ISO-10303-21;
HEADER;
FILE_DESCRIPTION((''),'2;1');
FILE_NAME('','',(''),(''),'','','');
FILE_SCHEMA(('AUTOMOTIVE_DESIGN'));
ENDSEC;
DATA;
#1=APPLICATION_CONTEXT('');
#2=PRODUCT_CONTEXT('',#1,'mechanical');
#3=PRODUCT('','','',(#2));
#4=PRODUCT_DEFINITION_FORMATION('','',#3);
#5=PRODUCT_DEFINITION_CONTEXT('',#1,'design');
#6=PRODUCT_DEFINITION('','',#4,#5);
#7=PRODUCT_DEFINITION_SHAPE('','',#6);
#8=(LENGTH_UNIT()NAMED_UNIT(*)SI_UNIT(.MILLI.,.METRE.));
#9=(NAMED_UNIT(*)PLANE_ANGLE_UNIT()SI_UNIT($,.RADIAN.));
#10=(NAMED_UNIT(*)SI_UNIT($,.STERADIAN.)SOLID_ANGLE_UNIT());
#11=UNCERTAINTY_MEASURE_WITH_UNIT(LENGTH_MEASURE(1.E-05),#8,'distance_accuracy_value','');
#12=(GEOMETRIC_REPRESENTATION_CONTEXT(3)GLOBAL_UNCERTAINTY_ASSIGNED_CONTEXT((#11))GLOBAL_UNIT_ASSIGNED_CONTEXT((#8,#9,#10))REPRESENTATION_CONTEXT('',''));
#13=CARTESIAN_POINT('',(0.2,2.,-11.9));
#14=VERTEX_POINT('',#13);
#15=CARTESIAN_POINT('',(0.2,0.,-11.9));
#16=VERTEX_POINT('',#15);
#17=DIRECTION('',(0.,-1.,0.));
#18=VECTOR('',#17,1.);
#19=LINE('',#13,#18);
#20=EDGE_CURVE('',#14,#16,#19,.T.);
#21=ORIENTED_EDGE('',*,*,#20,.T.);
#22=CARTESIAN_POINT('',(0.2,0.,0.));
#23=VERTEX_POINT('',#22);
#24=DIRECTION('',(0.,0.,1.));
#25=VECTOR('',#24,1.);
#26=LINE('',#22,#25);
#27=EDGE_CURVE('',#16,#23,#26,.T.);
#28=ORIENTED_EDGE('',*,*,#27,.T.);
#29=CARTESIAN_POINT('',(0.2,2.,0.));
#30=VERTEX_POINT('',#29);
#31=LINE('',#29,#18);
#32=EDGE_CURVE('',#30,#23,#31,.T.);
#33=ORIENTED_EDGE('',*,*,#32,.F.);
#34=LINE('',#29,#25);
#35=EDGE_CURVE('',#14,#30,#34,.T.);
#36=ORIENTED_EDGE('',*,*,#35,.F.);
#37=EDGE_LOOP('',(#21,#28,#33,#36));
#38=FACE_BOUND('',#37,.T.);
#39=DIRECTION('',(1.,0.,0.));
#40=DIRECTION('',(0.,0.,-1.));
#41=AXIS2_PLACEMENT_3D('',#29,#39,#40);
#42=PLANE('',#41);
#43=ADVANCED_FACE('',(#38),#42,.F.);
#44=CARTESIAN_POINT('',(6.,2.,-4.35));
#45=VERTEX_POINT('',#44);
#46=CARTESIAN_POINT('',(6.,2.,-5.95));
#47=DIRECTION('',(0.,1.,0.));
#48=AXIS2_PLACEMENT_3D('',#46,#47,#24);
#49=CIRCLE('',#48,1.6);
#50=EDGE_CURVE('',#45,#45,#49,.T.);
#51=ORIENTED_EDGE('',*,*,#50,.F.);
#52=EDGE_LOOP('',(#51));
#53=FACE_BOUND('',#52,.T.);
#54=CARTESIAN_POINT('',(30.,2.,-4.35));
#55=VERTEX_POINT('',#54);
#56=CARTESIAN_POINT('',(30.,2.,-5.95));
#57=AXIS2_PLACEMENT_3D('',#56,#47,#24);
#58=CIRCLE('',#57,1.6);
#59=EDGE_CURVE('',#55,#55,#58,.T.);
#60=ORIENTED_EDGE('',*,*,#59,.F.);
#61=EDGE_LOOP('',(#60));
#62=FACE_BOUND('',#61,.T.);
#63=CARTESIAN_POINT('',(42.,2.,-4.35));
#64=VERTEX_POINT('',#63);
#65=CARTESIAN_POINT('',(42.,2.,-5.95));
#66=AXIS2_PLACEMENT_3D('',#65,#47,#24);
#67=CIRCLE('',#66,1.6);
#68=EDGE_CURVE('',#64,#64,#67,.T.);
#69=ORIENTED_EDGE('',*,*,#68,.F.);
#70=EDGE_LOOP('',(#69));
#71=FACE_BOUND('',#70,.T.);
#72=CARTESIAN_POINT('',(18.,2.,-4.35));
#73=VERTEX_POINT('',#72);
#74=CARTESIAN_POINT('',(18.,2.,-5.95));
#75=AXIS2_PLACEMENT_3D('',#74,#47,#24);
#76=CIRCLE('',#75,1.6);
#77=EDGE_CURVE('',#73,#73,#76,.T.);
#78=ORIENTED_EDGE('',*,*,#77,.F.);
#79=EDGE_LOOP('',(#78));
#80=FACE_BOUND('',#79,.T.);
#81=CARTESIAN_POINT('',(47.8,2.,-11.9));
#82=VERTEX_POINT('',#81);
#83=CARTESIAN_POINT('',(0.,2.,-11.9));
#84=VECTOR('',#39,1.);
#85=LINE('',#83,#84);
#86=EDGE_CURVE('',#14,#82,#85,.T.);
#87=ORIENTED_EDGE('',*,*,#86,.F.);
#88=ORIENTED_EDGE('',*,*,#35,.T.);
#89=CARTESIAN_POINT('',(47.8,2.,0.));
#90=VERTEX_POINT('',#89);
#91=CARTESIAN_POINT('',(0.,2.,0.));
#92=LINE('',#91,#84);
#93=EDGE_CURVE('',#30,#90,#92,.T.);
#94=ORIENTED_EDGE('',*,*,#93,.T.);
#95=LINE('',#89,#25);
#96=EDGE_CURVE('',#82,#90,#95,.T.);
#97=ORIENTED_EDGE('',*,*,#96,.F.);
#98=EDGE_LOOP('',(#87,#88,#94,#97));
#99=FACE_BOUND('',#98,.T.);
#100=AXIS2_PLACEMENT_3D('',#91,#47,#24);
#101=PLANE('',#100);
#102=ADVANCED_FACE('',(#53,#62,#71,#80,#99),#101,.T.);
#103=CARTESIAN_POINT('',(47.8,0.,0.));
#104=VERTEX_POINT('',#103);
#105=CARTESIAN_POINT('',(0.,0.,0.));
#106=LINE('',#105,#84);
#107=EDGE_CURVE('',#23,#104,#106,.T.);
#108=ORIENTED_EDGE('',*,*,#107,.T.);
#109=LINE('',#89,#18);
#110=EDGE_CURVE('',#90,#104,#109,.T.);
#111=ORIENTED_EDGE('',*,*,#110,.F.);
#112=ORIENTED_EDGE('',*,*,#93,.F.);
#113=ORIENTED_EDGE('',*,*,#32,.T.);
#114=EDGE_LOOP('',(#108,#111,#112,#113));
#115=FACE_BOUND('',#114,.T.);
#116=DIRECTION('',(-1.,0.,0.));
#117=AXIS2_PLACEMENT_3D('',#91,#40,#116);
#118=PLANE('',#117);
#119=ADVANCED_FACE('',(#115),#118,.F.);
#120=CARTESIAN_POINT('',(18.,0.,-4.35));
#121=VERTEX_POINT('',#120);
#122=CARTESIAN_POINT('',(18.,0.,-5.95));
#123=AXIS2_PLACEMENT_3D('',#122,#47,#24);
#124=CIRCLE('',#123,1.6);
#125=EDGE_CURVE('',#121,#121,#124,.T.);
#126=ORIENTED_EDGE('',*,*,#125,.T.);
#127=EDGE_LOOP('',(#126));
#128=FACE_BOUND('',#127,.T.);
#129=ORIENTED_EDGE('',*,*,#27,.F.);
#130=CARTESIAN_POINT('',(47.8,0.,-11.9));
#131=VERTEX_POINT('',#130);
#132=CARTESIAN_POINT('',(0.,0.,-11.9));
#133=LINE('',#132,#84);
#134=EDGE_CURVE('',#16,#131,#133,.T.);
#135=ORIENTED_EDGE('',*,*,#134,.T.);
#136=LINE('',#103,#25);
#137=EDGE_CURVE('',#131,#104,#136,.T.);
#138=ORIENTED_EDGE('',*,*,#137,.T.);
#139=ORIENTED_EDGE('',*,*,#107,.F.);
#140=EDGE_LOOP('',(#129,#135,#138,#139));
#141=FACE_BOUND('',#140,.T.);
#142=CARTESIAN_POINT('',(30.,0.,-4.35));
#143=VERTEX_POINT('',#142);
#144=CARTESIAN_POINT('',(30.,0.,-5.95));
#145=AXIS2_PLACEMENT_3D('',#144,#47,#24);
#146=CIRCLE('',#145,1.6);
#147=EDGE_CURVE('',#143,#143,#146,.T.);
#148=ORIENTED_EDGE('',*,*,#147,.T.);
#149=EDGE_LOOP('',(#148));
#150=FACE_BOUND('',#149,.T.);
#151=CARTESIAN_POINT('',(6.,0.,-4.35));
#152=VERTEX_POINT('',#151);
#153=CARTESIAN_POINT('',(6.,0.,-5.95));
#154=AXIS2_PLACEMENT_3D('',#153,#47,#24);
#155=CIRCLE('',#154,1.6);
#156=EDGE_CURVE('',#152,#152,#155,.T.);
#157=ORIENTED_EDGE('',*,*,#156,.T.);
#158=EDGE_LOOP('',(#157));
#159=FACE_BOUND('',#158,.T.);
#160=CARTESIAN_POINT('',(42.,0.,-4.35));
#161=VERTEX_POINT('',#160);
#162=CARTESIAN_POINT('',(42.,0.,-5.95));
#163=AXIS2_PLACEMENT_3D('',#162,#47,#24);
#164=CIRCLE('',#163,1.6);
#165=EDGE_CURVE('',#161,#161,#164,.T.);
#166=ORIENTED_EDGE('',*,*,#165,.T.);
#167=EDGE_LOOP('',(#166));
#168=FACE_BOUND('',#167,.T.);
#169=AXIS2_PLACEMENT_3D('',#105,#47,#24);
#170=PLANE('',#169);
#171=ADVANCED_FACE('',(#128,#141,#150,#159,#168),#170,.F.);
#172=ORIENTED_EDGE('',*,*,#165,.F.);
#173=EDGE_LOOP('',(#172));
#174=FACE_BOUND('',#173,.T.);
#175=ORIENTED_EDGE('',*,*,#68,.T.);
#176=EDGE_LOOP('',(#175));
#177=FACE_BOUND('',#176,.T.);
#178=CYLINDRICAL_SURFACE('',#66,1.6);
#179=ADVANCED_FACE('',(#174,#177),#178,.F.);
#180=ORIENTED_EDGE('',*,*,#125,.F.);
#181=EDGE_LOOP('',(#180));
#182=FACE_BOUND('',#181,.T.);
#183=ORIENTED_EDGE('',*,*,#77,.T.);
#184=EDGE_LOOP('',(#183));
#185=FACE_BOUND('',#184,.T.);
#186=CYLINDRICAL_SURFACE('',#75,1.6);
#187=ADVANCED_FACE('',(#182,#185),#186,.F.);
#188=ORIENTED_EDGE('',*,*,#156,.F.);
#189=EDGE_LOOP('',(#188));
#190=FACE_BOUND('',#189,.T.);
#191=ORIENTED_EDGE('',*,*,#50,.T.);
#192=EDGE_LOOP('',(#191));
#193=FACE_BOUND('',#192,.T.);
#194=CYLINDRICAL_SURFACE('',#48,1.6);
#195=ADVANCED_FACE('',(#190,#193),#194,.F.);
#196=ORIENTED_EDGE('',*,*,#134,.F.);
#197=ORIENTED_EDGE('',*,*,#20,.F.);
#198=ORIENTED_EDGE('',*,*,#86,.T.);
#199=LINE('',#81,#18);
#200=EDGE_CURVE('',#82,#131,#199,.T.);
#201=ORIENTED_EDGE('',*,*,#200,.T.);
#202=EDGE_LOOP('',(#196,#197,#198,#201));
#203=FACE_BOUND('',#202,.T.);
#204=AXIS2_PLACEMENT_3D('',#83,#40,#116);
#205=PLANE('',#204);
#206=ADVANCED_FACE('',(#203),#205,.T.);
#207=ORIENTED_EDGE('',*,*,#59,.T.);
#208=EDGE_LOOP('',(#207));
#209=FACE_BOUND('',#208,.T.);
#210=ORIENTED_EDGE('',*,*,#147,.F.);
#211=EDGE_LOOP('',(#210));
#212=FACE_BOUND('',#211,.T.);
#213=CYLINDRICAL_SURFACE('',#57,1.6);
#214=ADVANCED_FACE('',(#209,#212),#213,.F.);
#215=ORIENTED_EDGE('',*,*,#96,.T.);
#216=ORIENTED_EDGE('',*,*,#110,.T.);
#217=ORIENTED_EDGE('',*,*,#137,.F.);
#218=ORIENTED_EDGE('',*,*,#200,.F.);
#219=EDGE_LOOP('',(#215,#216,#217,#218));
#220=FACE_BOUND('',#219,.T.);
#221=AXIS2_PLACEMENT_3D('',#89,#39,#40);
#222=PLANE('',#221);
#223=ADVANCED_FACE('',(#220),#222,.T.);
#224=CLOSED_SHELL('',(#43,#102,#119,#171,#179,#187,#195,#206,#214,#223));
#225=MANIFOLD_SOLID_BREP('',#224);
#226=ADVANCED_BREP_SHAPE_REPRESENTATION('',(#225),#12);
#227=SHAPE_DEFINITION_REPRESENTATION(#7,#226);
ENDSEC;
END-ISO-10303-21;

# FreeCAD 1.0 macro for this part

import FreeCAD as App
import Part
import Sketcher
Q = App.Units.Quantity


def add_polygon(sketch, points):
    """Adds a closed chain of lines whose ends are joined by coincident constraints."""
    first, n = sketch.GeometryCount, len(points)
    for a, b in zip(points, points[1:] + points[:1]):
        sketch.addGeometry(Part.LineSegment(App.Vector(*a, 0), App.Vector(*b, 0)), False)
    for i in range(n):
        sketch.addConstraint(Sketcher.Constraint("Coincident", first + i, 2, first + (i + 1) % n, 1))

doc = App.newDocument("Part")
body = doc.addObject("PartDesign::Body", "Body")

sketch1 = body.newObject("Sketcher::SketchObject", "Sketch")
sketch1.AttachmentSupport = (doc.getObject("XZ_Plane"), [""])
sketch1.MapMode = "FlatFace"
add_polygon(sketch1, [(0.2, 0), (47.8, 0), (47.8, -11.9), (0.2, -11.9)])
sketch1.addConstraint([
    Sketcher.Constraint("Horizontal", 0),
    Sketcher.Constraint("Vertical", 1),
    Sketcher.Constraint("Horizontal", 2),
    Sketcher.Constraint("Vertical", 3),
    Sketcher.Constraint("PointOnObject", 0, 2, -1),
    Sketcher.Constraint("DistanceX", 0, 1, 0, 2, Q("47.6 mm")),
    Sketcher.Constraint("DistanceY", 1, 2, 1, 1, Q("11.9 mm")),
    Sketcher.Constraint("DistanceX", -1, 1, 0, 2, Q("47.8 mm")),
])
pad1 = body.newObject("PartDesign::Pad", "Pad")
pad1.Profile = sketch1
pad1.Length = 2
pad1.Reversed = True

sketch2 = body.newObject("Sketcher::SketchObject", "Sketch001")
sketch2.AttachmentSupport = (doc.getObject("XZ_Plane"), [""])
sketch2.MapMode = "FlatFace"
sketch2.AttachmentOffset = App.Placement(App.Vector(0, 0, -2), App.Rotation())
sketch2.addGeometry([
    Part.Circle(App.Vector(42, -5.95, 0), App.Vector(0, 0, 1), 1.6),
    Part.Circle(App.Vector(30, -5.95, 0), App.Vector(0, 0, 1), 1.6),
    Part.Circle(App.Vector(18, -5.95, 0), App.Vector(0, 0, 1), 1.6),
    Part.Circle(App.Vector(6, -5.95, 0), App.Vector(0, 0, 1), 1.6),
], False)
sketch2.addConstraint([
    Sketcher.Constraint("Equal", 0, 1),
    Sketcher.Constraint("Equal", 1, 2),
    Sketcher.Constraint("Equal", 2, 3),
    Sketcher.Constraint("Horizontal", 0, 3, 1, 3),
    Sketcher.Constraint("Horizontal", 1, 3, 2, 3),
    Sketcher.Constraint("Horizontal", 2, 3, 3, 3),
    Sketcher.Constraint("Diameter", 0, Q("3.2 mm")),
    Sketcher.Constraint("DistanceX", -1, 1, 0, 3, Q("42 mm")),
    Sketcher.Constraint("DistanceX", -1, 1, 1, 3, Q("30 mm")),
    Sketcher.Constraint("DistanceX", -1, 1, 2, 3, Q("18 mm")),
    Sketcher.Constraint("DistanceX", -1, 1, 3, 3, Q("6 mm")),
    Sketcher.Constraint("DistanceY", 0, 3, -1, 1, Q("5.95 mm")),
])
doc.recompute()
hole = body.newObject("PartDesign::Hole", "Hole")
hole.Profile = sketch2
hole.ThreadType = "None"
hole.Diameter = 3.2
hole.DepthType = "Dimension"
hole.Depth = 3
hole.DrillPoint = "Flat"
hole.Reversed = True

doc.recompute()
